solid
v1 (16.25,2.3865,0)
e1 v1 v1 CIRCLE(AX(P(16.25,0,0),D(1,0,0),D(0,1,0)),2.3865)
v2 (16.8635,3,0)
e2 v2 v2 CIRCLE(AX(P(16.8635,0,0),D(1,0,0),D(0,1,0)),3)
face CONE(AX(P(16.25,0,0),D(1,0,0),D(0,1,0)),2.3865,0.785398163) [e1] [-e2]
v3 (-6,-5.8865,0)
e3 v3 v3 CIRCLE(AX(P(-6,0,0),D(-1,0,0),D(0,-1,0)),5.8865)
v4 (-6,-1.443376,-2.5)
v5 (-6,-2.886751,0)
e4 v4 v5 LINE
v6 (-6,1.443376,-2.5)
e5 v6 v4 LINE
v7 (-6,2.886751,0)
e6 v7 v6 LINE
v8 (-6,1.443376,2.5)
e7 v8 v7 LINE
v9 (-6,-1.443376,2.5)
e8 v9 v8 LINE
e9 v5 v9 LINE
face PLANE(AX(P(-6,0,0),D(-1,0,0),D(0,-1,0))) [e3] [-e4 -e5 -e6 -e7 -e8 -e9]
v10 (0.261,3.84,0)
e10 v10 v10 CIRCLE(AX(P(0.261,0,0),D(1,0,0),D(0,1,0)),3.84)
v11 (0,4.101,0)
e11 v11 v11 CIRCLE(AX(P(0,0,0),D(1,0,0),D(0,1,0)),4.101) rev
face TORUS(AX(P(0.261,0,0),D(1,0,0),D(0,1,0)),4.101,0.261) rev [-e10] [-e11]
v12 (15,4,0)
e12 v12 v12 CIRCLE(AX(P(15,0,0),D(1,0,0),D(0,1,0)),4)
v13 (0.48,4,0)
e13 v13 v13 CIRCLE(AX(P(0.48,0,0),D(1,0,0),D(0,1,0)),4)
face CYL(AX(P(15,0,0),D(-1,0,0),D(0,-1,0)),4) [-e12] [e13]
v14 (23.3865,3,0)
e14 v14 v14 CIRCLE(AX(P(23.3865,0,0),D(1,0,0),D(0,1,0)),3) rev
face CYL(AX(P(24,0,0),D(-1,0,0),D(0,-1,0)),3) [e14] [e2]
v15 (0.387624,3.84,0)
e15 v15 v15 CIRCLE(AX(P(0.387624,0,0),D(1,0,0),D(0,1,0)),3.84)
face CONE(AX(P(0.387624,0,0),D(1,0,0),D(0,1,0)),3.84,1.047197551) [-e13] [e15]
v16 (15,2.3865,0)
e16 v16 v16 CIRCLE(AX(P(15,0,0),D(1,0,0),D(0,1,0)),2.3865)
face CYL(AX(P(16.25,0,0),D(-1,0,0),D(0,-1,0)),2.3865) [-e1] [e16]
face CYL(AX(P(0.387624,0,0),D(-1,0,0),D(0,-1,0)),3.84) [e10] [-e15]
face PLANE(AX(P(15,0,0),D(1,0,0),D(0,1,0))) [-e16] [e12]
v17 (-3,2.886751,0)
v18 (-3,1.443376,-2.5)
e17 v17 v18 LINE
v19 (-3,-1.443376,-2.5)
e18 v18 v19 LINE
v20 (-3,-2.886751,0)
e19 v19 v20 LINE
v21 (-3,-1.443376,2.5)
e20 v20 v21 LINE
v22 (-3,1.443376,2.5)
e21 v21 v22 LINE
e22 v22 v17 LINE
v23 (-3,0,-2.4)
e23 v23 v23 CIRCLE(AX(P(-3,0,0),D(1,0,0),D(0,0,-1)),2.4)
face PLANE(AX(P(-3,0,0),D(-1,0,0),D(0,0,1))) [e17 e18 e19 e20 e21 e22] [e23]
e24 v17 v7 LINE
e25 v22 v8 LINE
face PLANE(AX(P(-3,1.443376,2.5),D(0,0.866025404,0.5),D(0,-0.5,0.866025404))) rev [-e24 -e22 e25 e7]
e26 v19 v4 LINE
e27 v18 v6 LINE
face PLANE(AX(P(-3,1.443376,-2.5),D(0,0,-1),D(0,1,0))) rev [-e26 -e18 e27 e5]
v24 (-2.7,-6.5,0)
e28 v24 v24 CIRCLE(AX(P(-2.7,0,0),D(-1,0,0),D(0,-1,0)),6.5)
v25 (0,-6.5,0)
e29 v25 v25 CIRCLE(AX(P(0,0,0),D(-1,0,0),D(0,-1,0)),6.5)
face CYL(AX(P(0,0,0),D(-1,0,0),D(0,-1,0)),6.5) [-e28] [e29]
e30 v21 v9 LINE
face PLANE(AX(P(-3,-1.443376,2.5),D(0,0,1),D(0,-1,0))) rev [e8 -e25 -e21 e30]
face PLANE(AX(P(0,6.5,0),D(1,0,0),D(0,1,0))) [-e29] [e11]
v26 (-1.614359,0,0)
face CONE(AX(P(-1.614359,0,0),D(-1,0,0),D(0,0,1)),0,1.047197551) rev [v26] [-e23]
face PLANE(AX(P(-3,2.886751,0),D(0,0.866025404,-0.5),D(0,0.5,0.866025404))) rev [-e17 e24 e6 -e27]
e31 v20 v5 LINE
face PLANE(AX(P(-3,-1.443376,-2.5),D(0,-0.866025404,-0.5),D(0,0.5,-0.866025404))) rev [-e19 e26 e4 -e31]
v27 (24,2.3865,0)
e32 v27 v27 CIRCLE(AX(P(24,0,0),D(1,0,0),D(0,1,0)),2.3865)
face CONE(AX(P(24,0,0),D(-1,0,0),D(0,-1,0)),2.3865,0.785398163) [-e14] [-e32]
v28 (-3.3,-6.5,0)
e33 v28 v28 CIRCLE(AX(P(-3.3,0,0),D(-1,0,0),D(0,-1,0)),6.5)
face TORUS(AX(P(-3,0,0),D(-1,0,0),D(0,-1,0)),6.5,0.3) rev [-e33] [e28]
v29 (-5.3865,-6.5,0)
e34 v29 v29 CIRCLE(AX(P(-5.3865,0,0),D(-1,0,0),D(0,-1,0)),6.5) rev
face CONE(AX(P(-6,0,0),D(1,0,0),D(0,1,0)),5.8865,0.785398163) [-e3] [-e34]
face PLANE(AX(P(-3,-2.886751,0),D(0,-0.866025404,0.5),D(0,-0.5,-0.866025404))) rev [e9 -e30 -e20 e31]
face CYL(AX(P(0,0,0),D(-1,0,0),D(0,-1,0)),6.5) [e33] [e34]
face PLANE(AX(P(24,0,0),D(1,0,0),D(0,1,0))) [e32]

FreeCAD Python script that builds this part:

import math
import FreeCAD as App
import Part
import Sketcher
from FreeCAD import Vector
Q = App.Units.Quantity


def edges_at(feature, points):
    """Names of the edges that pass closest to the given points."""
    edges = feature.Shape.Edges
    near = lambda p: min(range(len(edges)), key=lambda i: edges[i].distToShape(Part.Vertex(*p))[0])
    return sorted({f"Edge{near(p) + 1}" for p in points})


def add_polygon(sketch, points):
    """Adds a closed chain of lines whose ends are joined by coincident constraints."""
    first, n = sketch.GeometryCount, len(points)
    for a, b in zip(points, points[1:] + points[:1]):
        sketch.addGeometry(Part.LineSegment(App.Vector(*a, 0), App.Vector(*b, 0)), False)
    for i in range(n):
        sketch.addConstraint(Sketcher.Constraint("Coincident", first + i, 2, first + (i + 1) % n, 1))

doc = App.newDocument("Part")
body = doc.addObject("PartDesign::Body", "Body")

# Sketch on XY plane
sketch1 = doc.addObject("Sketcher::SketchObject", "Sketch")
body.addObject(sketch1)
sketch1.AttachmentSupport = (doc.XY_Plane, [""])
sketch1.MapMode = "FlatFace"
sketch1.addGeometry(Part.LineSegment(Vector(0, 6.5, 0), Vector(0, 0, 0)), False)
sketch1.addGeometry(Part.LineSegment(Vector(0, 0, 0), Vector(-6, 0, 0)), False)
sketch1.addGeometry(Part.LineSegment(Vector(-6, 0, 0), Vector(-6, 6.5, 0)), False)
sketch1.addGeometry(Part.LineSegment(Vector(-6, 6.5, 0), Vector(-3.3, 6.5, 0)), False)
sketch1.addGeometry(Part.ArcOfCircle(Part.Circle(Vector(-3, 6.5, 0), Vector(0, 0, 1), 0.3), math.radians(180), math.radians(360)), False)
sketch1.addGeometry(Part.LineSegment(Vector(-2.7, 6.5, 0), Vector(0, 6.5, 0)), False)
sketch1.addConstraint(Sketcher.Constraint("Coincident", 0, 2, 1, 1))
sketch1.addConstraint(Sketcher.Constraint("Coincident", 1, 2, 2, 1))
sketch1.addConstraint(Sketcher.Constraint("Coincident", 2, 2, 3, 1))
sketch1.addConstraint(Sketcher.Constraint("Coincident", 3, 2, 4, 1))
sketch1.addConstraint(Sketcher.Constraint("Coincident", 4, 2, 5, 1))
sketch1.addConstraint(Sketcher.Constraint("Coincident", 5, 2, 0, 1))
sketch1.addConstraint(Sketcher.Constraint("Vertical", 0))
sketch1.addConstraint(Sketcher.Constraint("Horizontal", 1))
sketch1.addConstraint(Sketcher.Constraint("Vertical", 2))
sketch1.addConstraint(Sketcher.Constraint("Horizontal", 3))
sketch1.addConstraint(Sketcher.Constraint("Horizontal", 5))
sketch1.addConstraint(Sketcher.Constraint("Coincident", 0, 2, -1, 1))
sketch1.addConstraint(Sketcher.Constraint("Horizontal", 4, 3, 2, 2))
sketch1.addConstraint(Sketcher.Constraint("Horizontal", 3, 2, 4, 2))
sketch1.addConstraint(Sketcher.Constraint("Equal", 3, 5))
sketch1.addConstraint(Sketcher.Constraint("Radius", 4, 0.3))
sketch1.addConstraint(Sketcher.Constraint("DistanceX", 1, 2, 1, 1, 6.0))
sketch1.addConstraint(Sketcher.Constraint("DistanceY", 0, 2, 0, 1, 6.5))
revolution = doc.addObject("PartDesign::Revolution", "Revolution")
body.addObject(revolution)
revolution.Profile = sketch1
revolution.ReferenceAxis = (sketch1, ["H_Axis"])
revolution.Angle = 360

# Sketch on YZ plane
sketch2 = doc.addObject("Sketcher::SketchObject", "Sketch001")
body.addObject(sketch2)
sketch2.AttachmentSupport = (doc.YZ_Plane, [""])
sketch2.MapMode = "FlatFace"
sketch2.addGeometry(Part.Circle(Vector(0, 0, 0), Vector(0, 0, 1), 3.8), False)
sketch2.addConstraint(Sketcher.Constraint("Coincident", 0, 3, -1, 1))
sketch2.addConstraint(Sketcher.Constraint("Diameter", 0, 7.68))
pad1 = doc.addObject("PartDesign::Pad", "Pad")
body.addObject(pad1)
pad1.Profile = sketch2
pad1.Length = 0.387624

# Sketch on YZ plane
sketch3 = doc.addObject("Sketcher::SketchObject", "Sketch002")
body.addObject(sketch3)
sketch3.AttachmentSupport = (doc.YZ_Plane, [""])
sketch3.MapMode = "FlatFace"
sketch3.AttachmentOffset = App.Placement(Vector(0, 0, 0.387624), App.Rotation())
sketch3.addGeometry(Part.Circle(Vector(0, 0, 0), Vector(0, 0, 1), 3.8), False)
sketch3.addConstraint(Sketcher.Constraint("Coincident", 0, 3, -1, 1))
sketch3.addConstraint(Sketcher.Constraint("Diameter", 0, 7.68))
pad2 = doc.addObject("PartDesign::Pad", "Pad001")
body.addObject(pad2)
pad2.Profile = sketch3
pad2.Length = 0.092376
pad2.TaperAngle = 60

# Sketch on YZ plane
sketch4 = doc.addObject("Sketcher::SketchObject", "Sketch003")
body.addObject(sketch4)
sketch4.AttachmentSupport = (doc.YZ_Plane, [""])
sketch4.MapMode = "FlatFace"
sketch4.AttachmentOffset = App.Placement(Vector(0, 0, 0.48), App.Rotation())
sketch4.addGeometry(Part.Circle(Vector(0, 0, 0), Vector(0, 0, 1), 4), False)
sketch4.addConstraint(Sketcher.Constraint("Coincident", 0, 3, -1, 1))
sketch4.addConstraint(Sketcher.Constraint("Diameter", 0, 8.0))
pad3 = doc.addObject("PartDesign::Pad", "Pad002")
body.addObject(pad3)
pad3.Profile = sketch4
pad3.Length = 14.52

# Sketch on YZ plane
sketch5 = doc.addObject("Sketcher::SketchObject", "Sketch004")
body.addObject(sketch5)
sketch5.AttachmentSupport = (doc.YZ_Plane, [""])
sketch5.MapMode = "FlatFace"
sketch5.AttachmentOffset = App.Placement(Vector(0, 0, 15), App.Rotation())
sketch5.addGeometry(Part.Circle(Vector(0, 0, 0), Vector(0, 0, 1), 2.4), False)
sketch5.addConstraint(Sketcher.Constraint("Coincident", 0, 3, -1, 1))
sketch5.addConstraint(Sketcher.Constraint("Diameter", 0, 4.773))
pad4 = doc.addObject("PartDesign::Pad", "Pad003")
body.addObject(pad4)
pad4.Profile = sketch5
pad4.Length = 1.25

# Sketch on YZ plane
sketch6 = doc.addObject("Sketcher::SketchObject", "Sketch005")
body.addObject(sketch6)
sketch6.AttachmentSupport = (doc.YZ_Plane, [""])
sketch6.MapMode = "FlatFace"
sketch6.AttachmentOffset = App.Placement(Vector(0, 0, 16.25), App.Rotation())
sketch6.addGeometry(Part.Circle(Vector(0, 0, 0), Vector(0, 0, 1), 2.4), False)
sketch6.addConstraint(Sketcher.Constraint("Coincident", 0, 3, -1, 1))
sketch6.addConstraint(Sketcher.Constraint("Diameter", 0, 4.773))
pad5 = doc.addObject("PartDesign::Pad", "Pad004")
body.addObject(pad5)
pad5.Profile = sketch6
pad5.Length = 0.6135
pad5.TaperAngle = 45

# Sketch on YZ plane
sketch7 = doc.addObject("Sketcher::SketchObject", "Sketch006")
body.addObject(sketch7)
sketch7.AttachmentSupport = (doc.YZ_Plane, [""])
sketch7.MapMode = "FlatFace"
sketch7.AttachmentOffset = App.Placement(Vector(0, 0, 16.8635), App.Rotation())
sketch7.addGeometry(Part.Circle(Vector(0, 0, 0), Vector(0, 0, 1), 3), False)
sketch7.addConstraint(Sketcher.Constraint("Coincident", 0, 3, -1, 1))
sketch7.addConstraint(Sketcher.Constraint("Diameter", 0, 6.0))
pad6 = doc.addObject("PartDesign::Pad", "Pad005")
body.addObject(pad6)
pad6.Profile = sketch7
pad6.Length = 7.1365

# Sketch on YZ plane
sketch8 = doc.addObject("Sketcher::SketchObject", "Sketch007")
body.addObject(sketch8)
sketch8.AttachmentSupport = (doc.YZ_Plane, [""])
sketch8.MapMode = "FlatFace"
sketch8.AttachmentOffset = App.Placement(Vector(0, 0, -6), App.Rotation())
add_polygon(sketch8, [(-1.4, 2.5), (1.4, 2.5), (2.9, 0), (1.4, -2.5), (-1.4, -2.5), (-2.9, 0)])  # lines 0-5
sketch8.addConstraint(Sketcher.Constraint("Horizontal", 0))
sketch8.addConstraint(Sketcher.Constraint("Horizontal", 3))
sketch8.addConstraint(Sketcher.Constraint("Symmetric", 0, 2, 3, 2, -1, 1))
sketch8.addConstraint(Sketcher.Constraint("Symmetric", 1, 2, 4, 2, -1, 1))
sketch8.addConstraint(Sketcher.Constraint("PointOnObject", 1, 2, -1))
sketch8.addConstraint(Sketcher.Constraint("Parallel", 2, 5))
sketch8.addConstraint(Sketcher.Constraint("Vertical", 0, 2, 2, 2))
sketch8.addConstraint(Sketcher.Constraint("Angle", 1, Q("-60 deg")))
sketch8.addConstraint(Sketcher.Constraint("DistanceY", 2, 2, 0, 2, 5.0))
sketch8.addConstraint(Sketcher.Constraint("DistanceX", 0, 1, 0, 2, 2.886751))
pocket1 = doc.addObject("PartDesign::Pocket", "Pocket")
body.addObject(pocket1)
pocket1.Profile = sketch8
pocket1.Length = 3
pocket1.Reversed = True

# Sketch on XY plane
sketch9 = doc.addObject("Sketcher::SketchObject", "Sketch008")
body.addObject(sketch9)
sketch9.AttachmentSupport = (doc.XY_Plane, [""])
sketch9.MapMode = "FlatFace"
add_polygon(sketch9, [(-3, 2.4), (-3, 0), (-1.6, 0)])  # lines 0-2
sketch9.addConstraint(Sketcher.Constraint("Vertical", 0))
sketch9.addConstraint(Sketcher.Constraint("Horizontal", 1))
sketch9.addConstraint(Sketcher.Constraint("PointOnObject", 0, 2, -1))
sketch9.addConstraint(Sketcher.Constraint("Angle", 2, Q("120 deg")))
sketch9.addConstraint(Sketcher.Constraint("DistanceY", 0, 2, 0, 1, 2.4))
sketch9.addConstraint(Sketcher.Constraint("DistanceX", 0, 2, -1, 1, 3.0))
groove = doc.addObject("PartDesign::Groove", "Groove")
body.addObject(groove)
groove.Profile = sketch9
groove.ReferenceAxis = (sketch9, ["H_Axis"])
groove.Angle = 360
doc.recompute()

chamfer = doc.addObject("PartDesign::Chamfer", "Chamfer")
body.addObject(chamfer)
chamfer.Base = (groove, edges_at(groove, [(24, 0, 3), (-6, -6.5, 0)]))
chamfer.Size = 0.6135
doc.recompute()

fillet = doc.addObject("PartDesign::Fillet", "Fillet")
body.addObject(fillet)
fillet.Base = (chamfer, edges_at(chamfer, [(0, 0, 3.84)]))
fillet.Radius = 0.261

doc.recompute()
